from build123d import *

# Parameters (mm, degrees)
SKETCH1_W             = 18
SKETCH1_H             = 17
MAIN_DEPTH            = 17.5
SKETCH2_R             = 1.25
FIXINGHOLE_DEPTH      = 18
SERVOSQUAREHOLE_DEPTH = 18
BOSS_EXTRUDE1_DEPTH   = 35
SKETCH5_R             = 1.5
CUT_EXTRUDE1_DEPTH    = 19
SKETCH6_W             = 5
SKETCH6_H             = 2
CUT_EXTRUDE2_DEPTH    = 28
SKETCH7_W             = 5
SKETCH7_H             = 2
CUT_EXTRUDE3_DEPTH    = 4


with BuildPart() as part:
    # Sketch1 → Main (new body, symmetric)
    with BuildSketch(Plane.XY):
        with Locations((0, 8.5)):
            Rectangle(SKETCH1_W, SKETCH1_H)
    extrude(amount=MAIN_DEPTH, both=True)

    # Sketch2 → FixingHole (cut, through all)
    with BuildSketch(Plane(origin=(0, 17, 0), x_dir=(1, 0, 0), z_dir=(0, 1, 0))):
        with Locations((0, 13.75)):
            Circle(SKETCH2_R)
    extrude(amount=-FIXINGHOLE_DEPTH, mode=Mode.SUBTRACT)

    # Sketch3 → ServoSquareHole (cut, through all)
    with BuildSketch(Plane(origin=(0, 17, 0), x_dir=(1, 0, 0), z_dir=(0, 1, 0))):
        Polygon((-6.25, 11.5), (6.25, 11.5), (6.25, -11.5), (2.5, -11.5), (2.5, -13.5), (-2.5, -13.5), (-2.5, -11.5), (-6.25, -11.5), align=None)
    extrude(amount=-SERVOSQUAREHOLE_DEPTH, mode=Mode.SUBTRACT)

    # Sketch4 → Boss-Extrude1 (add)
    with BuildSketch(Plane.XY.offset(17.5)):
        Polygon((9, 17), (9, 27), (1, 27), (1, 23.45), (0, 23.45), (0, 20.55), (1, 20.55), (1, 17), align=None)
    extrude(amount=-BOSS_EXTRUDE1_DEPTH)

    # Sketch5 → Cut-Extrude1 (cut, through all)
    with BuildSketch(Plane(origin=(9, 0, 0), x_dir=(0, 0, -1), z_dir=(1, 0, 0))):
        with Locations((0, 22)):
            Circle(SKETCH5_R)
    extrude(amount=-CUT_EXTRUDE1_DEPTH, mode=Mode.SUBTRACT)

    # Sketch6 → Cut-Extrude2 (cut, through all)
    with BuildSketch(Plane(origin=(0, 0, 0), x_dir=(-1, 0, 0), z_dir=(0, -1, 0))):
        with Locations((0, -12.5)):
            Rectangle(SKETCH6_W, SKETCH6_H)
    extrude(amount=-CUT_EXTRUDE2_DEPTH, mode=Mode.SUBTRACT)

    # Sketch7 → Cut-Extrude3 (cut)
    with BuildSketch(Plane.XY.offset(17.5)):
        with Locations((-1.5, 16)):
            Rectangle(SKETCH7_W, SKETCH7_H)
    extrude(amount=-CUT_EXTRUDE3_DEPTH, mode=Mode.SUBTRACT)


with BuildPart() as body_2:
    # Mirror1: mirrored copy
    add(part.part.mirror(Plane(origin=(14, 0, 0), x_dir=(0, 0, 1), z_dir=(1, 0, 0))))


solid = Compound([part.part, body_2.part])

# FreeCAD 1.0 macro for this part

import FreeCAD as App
import Part
import Sketcher
from FreeCAD import Vector
Q = App.Units.Quantity


def add_polygon(sketch, points):
    """Adds a closed chain of lines whose ends are joined by coincident constraints."""
    first, n = sketch.GeometryCount, len(points)
    for a, b in zip(points, points[1:] + points[:1]):
        sketch.addGeometry(Part.LineSegment(App.Vector(*a, 0), App.Vector(*b, 0)), False)
    for i in range(n):
        sketch.addConstraint(Sketcher.Constraint("Coincident", first + i, 2, first + (i + 1) % n, 1))

doc = App.newDocument("Part")
body = doc.addObject("PartDesign::Body", "Body")

# Sketch on XY plane
sketch1 = body.newObject("Sketcher::SketchObject", "Sketch")
sketch1.AttachmentSupport = (doc.getObject("XY_Plane"), [""])
sketch1.MapMode = "FlatFace"
add_polygon(sketch1, [(-9, 17), (-9, 0), (9, 0), (9, 17)])  # lines 0-3
sketch1.addConstraint([
    Sketcher.Constraint("Vertical", 0),
    Sketcher.Constraint("Horizontal", 1),
    Sketcher.Constraint("Vertical", 2),
    Sketcher.Constraint("Horizontal", 3),
    Sketcher.Constraint("Symmetric", 0, 2, 1, 2, -1, 1),
    Sketcher.Constraint("DistanceX", 1, 1, 1, 2, Q("18 mm")),
    Sketcher.Constraint("DistanceY", 0, 2, 0, 1, Q("17 mm")),
])
pad1 = body.newObject("PartDesign::Pad", "Pad")
pad1.Profile = sketch1
pad1.Length = 35
pad1.Midplane = True

# Sketch on XZ plane
sketch2 = body.newObject("Sketcher::SketchObject", "Sketch001")
sketch2.AttachmentSupport = (doc.getObject("XZ_Plane"), [""])
sketch2.MapMode = "FlatFace"
sketch2.AttachmentOffset = App.Placement(Vector(0, 0, -17), App.Rotation())
sketch2.addGeometry(Part.Circle(Vector(0, -13.8, 0), Vector(0, 0, 1), 1.2), False)
sketch2.addConstraint([
    Sketcher.Constraint("PointOnObject", 0, 3, -2),
    Sketcher.Constraint("Diameter", 0, Q("2.5 mm")),
    Sketcher.Constraint("DistanceY", 0, 3, -1, 1, Q("13.75 mm")),
])
pocket1 = body.newObject("PartDesign::Pocket", "Pocket")
pocket1.Profile = sketch2
pocket1.Type = "ThroughAll"
pocket1.Reversed = True

# Sketch on XZ plane
sketch3 = body.newObject("Sketcher::SketchObject", "Sketch002")
sketch3.AttachmentSupport = (doc.getObject("XZ_Plane"), [""])
sketch3.MapMode = "FlatFace"
sketch3.AttachmentOffset = App.Placement(Vector(0, 0, -17), App.Rotation())
add_polygon(sketch3, [(6.2, -11.5), (-6.2, -11.5), (-6.2, 11.5), (-2.5, 11.5), (-2.5, 13.5), (2.5, 13.5), (2.5, 11.5), (6.2, 11.5)])  # lines 0-7
sketch3.addConstraint([
    Sketcher.Constraint("Horizontal", 0),
    Sketcher.Constraint("Vertical", 1),
    Sketcher.Constraint("Horizontal", 2),
    Sketcher.Constraint("Vertical", 3),
    Sketcher.Constraint("Horizontal", 4),
    Sketcher.Constraint("Vertical", 5),
    Sketcher.Constraint("Horizontal", 6),
    Sketcher.Constraint("Vertical", 7),
    Sketcher.Constraint("Symmetric", 0, 2, 6, 2, -1, 1),
    Sketcher.Constraint("Symmetric", 2, 2, 5, 2, -2),
    Sketcher.Constraint("DistanceX", 4, 1, 4, 2, Q("5 mm")),
    Sketcher.Constraint("DistanceY", 1, 1, 1, 2, Q("23 mm")),
    Sketcher.Constraint("DistanceY", 3, 1, 3, 2, Q("2 mm")),
    Sketcher.Constraint("DistanceX", 0, 2, 0, 1, Q("12.5 mm")),
])
pocket2 = body.newObject("PartDesign::Pocket", "Pocket001")
pocket2.Profile = sketch3
pocket2.Type = "ThroughAll"
pocket2.Reversed = True

# Sketch on XY plane
sketch4 = body.newObject("Sketcher::SketchObject", "Sketch003")
sketch4.AttachmentSupport = (doc.getObject("XY_Plane"), [""])
sketch4.MapMode = "FlatFace"
sketch4.AttachmentOffset = App.Placement(Vector(0, 0, 17.5), App.Rotation())
add_polygon(sketch4, [(9, 17), (9, 27), (1, 27), (1, 23.4), (0, 23.4), (0, 20.6), (1, 20.6), (1, 17)])  # lines 0-7
sketch4.addConstraint([
    Sketcher.Constraint("Vertical", 0),
    Sketcher.Constraint("Horizontal", 1),
    Sketcher.Constraint("Vertical", 2),
    Sketcher.Constraint("Horizontal", 3),
    Sketcher.Constraint("Vertical", 4),
    Sketcher.Constraint("Horizontal", 5),
    Sketcher.Constraint("Vertical", 6),
    Sketcher.Constraint("Horizontal", 7),
    Sketcher.Constraint("PointOnObject", 3, 2, -2),
    Sketcher.Constraint("Vertical", 2, 2, 5, 2),
    Sketcher.Constraint("Equal", 2, 6),
    Sketcher.Constraint("DistanceX", 1, 2, 1, 1, Q("8 mm")),
    Sketcher.Constraint("DistanceX", 3, 2, 3, 1, Q("1 mm")),
    Sketcher.Constraint("DistanceY", 0, 1, 0, 2, Q("10 mm")),
    Sketcher.Constraint("DistanceY", 4, 2, 4, 1, Q("2.9 mm")),
    Sketcher.Constraint("DistanceY", -1, 1, 0, 2, Q("27 mm")),
])
pad2 = body.newObject("PartDesign::Pad", "Pad001")
pad2.Profile = sketch4
pad2.Length = 35
pad2.Reversed = True

# Sketch on YZ plane
sketch5 = body.newObject("Sketcher::SketchObject", "Sketch004")
sketch5.AttachmentSupport = (doc.getObject("YZ_Plane"), [""])
sketch5.MapMode = "FlatFace"
sketch5.AttachmentOffset = App.Placement(Vector(0, 0, 9), App.Rotation())
sketch5.addGeometry(Part.Circle(Vector(22, 0, 0), Vector(0, 0, 1), 1.5), False)
sketch5.addConstraint([
    Sketcher.Constraint("PointOnObject", 0, 3, -1),
    Sketcher.Constraint("Diameter", 0, Q("3 mm")),
    Sketcher.Constraint("DistanceX", -1, 1, 0, 3, Q("22 mm")),
])
pocket3 = body.newObject("PartDesign::Pocket", "Pocket002")
pocket3.Profile = sketch5
pocket3.Type = "ThroughAll"

# Sketch on XZ plane
sketch6 = body.newObject("Sketcher::SketchObject", "Sketch005")
sketch6.AttachmentSupport = (doc.getObject("XZ_Plane"), [""])
sketch6.MapMode = "FlatFace"
add_polygon(sketch6, [(2.5, 11.5), (2.5, 13.5), (-2.5, 13.5), (-2.5, 11.5)])  # lines 0-3
sketch6.addConstraint([
    Sketcher.Constraint("Vertical", 0),
    Sketcher.Constraint("Horizontal", 1),
    Sketcher.Constraint("Vertical", 2),
    Sketcher.Constraint("Horizontal", 3),
    Sketcher.Constraint("DistanceX", 1, 2, 1, 1, Q("5 mm")),
    Sketcher.Constraint("DistanceY", 0, 1, 0, 2, Q("2 mm")),
    Sketcher.Constraint("DistanceX", -1, 1, 0, 2, Q("2.5 mm")),
    Sketcher.Constraint("DistanceY", -1, 1, 0, 2, Q("13.5 mm")),
])
pocket4 = body.newObject("PartDesign::Pocket", "Pocket003")
pocket4.Profile = sketch6
pocket4.Type = "ThroughAll"

# Sketch on XY plane
sketch7 = body.newObject("Sketcher::SketchObject", "Sketch006")
sketch7.AttachmentSupport = (doc.getObject("XY_Plane"), [""])
sketch7.MapMode = "FlatFace"
sketch7.AttachmentOffset = App.Placement(Vector(0, 0, 17.5), App.Rotation())
add_polygon(sketch7, [(-4, 17), (-4, 15), (1, 15), (1, 17)])  # lines 0-3
sketch7.addConstraint([
    Sketcher.Constraint("Vertical", 0),
    Sketcher.Constraint("Horizontal", 1),
    Sketcher.Constraint("Vertical", 2),
    Sketcher.Constraint("Horizontal", 3),
    Sketcher.Constraint("DistanceX", 1, 1, 1, 2, Q("5 mm")),
    Sketcher.Constraint("DistanceY", 0, 2, 0, 1, Q("2 mm")),
    Sketcher.Constraint("DistanceX", 0, 2, -1, 1, Q("4 mm")),
    Sketcher.Constraint("DistanceY", -1, 1, 0, 2, Q("15 mm")),
])
pocket5 = body.newObject("PartDesign::Pocket", "Pocket004")
pocket5.Profile = sketch7
pocket5.Length = 4
body2 = doc.addObject("PartDesign::Body", "Body001")
doc.recompute()

mirroring = doc.addObject("Part::Mirroring", "Mirroring")
mirroring.Source = body
mirroring.Base = Vector(14, 0, 0)
mirroring.Normal = Vector(1, 0, 0)
body2.BaseFeature = mirroring
doc.recompute()
mirroring.Visibility = False

doc.recompute()
